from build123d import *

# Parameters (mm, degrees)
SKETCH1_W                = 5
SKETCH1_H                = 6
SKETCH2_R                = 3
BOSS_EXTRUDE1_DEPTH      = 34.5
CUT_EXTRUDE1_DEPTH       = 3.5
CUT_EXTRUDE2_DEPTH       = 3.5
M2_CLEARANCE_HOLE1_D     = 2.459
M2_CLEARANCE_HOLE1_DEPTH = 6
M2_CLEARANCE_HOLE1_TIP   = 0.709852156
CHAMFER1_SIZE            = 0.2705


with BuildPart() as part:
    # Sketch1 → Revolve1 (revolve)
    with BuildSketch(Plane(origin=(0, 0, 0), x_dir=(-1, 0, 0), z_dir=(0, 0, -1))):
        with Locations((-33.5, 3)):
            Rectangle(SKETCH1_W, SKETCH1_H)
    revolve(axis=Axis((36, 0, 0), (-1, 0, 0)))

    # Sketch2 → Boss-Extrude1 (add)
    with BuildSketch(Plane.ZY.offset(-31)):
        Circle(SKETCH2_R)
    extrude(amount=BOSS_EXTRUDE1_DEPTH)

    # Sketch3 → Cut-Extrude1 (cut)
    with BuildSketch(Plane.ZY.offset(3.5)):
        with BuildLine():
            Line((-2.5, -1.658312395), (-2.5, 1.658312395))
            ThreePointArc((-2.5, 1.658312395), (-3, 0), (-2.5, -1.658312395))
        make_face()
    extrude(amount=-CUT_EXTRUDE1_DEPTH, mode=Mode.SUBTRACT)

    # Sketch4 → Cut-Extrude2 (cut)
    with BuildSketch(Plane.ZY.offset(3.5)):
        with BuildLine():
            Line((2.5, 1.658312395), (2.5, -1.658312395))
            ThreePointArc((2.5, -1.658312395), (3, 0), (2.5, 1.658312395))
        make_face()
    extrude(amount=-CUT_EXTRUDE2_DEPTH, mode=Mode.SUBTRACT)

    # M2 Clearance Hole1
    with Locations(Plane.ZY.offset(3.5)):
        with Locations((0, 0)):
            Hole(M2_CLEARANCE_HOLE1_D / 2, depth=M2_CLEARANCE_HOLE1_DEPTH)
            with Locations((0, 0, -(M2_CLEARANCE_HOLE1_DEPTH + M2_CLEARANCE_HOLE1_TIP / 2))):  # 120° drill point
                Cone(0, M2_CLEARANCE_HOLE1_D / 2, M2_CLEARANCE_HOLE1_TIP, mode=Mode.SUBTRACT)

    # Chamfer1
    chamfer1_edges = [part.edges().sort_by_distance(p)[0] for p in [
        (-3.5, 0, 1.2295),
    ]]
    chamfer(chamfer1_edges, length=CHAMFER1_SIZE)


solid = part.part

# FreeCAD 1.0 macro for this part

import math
import FreeCAD as App
import Part
import Sketcher
Q = App.Units.Quantity


def edges_at(feature, points):
    """Names of the edges that pass closest to the given points."""
    edges = feature.Shape.Edges
    near = lambda p: min(range(len(edges)), key=lambda i: edges[i].distToShape(Part.Vertex(*p))[0])
    return sorted({f"Edge{near(p) + 1}" for p in points})

doc = App.newDocument("Part")
body = doc.addObject("PartDesign::Body", "Body")

# Sketch on XY plane
sketch1 = doc.addObject("Sketcher::SketchObject", "Sketch")
body.addObject(sketch1)
sketch1.AttachmentSupport = (doc.XY_Plane, [""])
sketch1.MapMode = "FlatFace"
sketch1.addGeometry(Part.LineSegment(App.Vector(36, 6, 0), App.Vector(36, 0, 0)), False)
sketch1.addGeometry(Part.LineSegment(App.Vector(36, 0, 0), App.Vector(31, 0, 0)), False)
sketch1.addGeometry(Part.LineSegment(App.Vector(31, 0, 0), App.Vector(31, 6, 0)), False)
sketch1.addGeometry(Part.LineSegment(App.Vector(31, 6, 0), App.Vector(36, 6, 0)), False)
sketch1.addConstraint(Sketcher.Constraint("Coincident", 0, 2, 1, 1))
sketch1.addConstraint(Sketcher.Constraint("Coincident", 1, 2, 2, 1))
sketch1.addConstraint(Sketcher.Constraint("Coincident", 2, 2, 3, 1))
sketch1.addConstraint(Sketcher.Constraint("Coincident", 3, 2, 0, 1))
sketch1.addConstraint(Sketcher.Constraint("Vertical", 0))
sketch1.addConstraint(Sketcher.Constraint("Horizontal", 1))
sketch1.addConstraint(Sketcher.Constraint("Vertical", 2))
sketch1.addConstraint(Sketcher.Constraint("Horizontal", 3))
sketch1.addConstraint(Sketcher.Constraint("PointOnObject", 0, 2, -1))
sketch1.addConstraint(Sketcher.Constraint("DistanceX", 1, 2, 1, 1, Q("5 mm")))
sketch1.addConstraint(Sketcher.Constraint("DistanceY", 0, 2, 0, 1, Q("6 mm")))
sketch1.addConstraint(Sketcher.Constraint("DistanceX", -1, 1, 0, 2, Q("36 mm")))
revolution = doc.addObject("PartDesign::Revolution", "Revolution")
body.addObject(revolution)
revolution.Profile = sketch1
revolution.ReferenceAxis = (sketch1, ["H_Axis"])
revolution.Angle = 360

# Sketch on YZ plane
sketch2 = doc.addObject("Sketcher::SketchObject", "Sketch001")
body.addObject(sketch2)
sketch2.AttachmentSupport = (doc.YZ_Plane, [""])
sketch2.MapMode = "FlatFace"
sketch2.AttachmentOffset = App.Placement(App.Vector(0, 0, 31), App.Rotation())
sketch2.addGeometry(Part.Circle(App.Vector(0, 0, 0), App.Vector(0, 0, 1), 3), False)
sketch2.addConstraint(Sketcher.Constraint("Coincident", 0, 3, -1, 1))
sketch2.addConstraint(Sketcher.Constraint("Diameter", 0, Q("6 mm")))
pad1 = doc.addObject("PartDesign::Pad", "Pad")
body.addObject(pad1)
pad1.Profile = sketch2
pad1.Length = 34.5
pad1.Reversed = True

# Sketch on YZ plane
sketch3 = doc.addObject("Sketcher::SketchObject", "Sketch002")
body.addObject(sketch3)
sketch3.AttachmentSupport = (doc.YZ_Plane, [""])
sketch3.MapMode = "FlatFace"
sketch3.AttachmentOffset = App.Placement(App.Vector(0, 0, -3.5), App.Rotation())
sketch3.addGeometry(Part.LineSegment(App.Vector(-1.7, -2.5, 0), App.Vector(1.7, -2.5, 0)), False)
sketch3.addGeometry(Part.ArcOfCircle(Part.Circle(App.Vector(0, 0, 0), App.Vector(0, 0, 1), 3), math.radians(-124), math.radians(-56)), False)
sketch3.addConstraint(Sketcher.Constraint("Coincident", 0, 1, 1, 1))
sketch3.addConstraint(Sketcher.Constraint("Coincident", 1, 2, 0, 2))
sketch3.addConstraint(Sketcher.Constraint("Horizontal", 0))
sketch3.addConstraint(Sketcher.Constraint("Coincident", 1, 3, -1, 1))
sketch3.addConstraint(Sketcher.Constraint("Radius", 1, Q("3 mm")))
sketch3.addConstraint(Sketcher.Constraint("DistanceY", 0, 1, -1, 1, Q("2.5 mm")))
pocket1 = doc.addObject("PartDesign::Pocket", "Pocket")
body.addObject(pocket1)
pocket1.Profile = sketch3
pocket1.Length = 3.5
pocket1.Reversed = True

# Sketch on YZ plane
sketch4 = doc.addObject("Sketcher::SketchObject", "Sketch003")
body.addObject(sketch4)
sketch4.AttachmentSupport = (doc.YZ_Plane, [""])
sketch4.MapMode = "FlatFace"
sketch4.AttachmentOffset = App.Placement(App.Vector(0, 0, -3.5), App.Rotation())
sketch4.addGeometry(Part.LineSegment(App.Vector(1.7, 2.5, 0), App.Vector(-1.7, 2.5, 0)), False)
sketch4.addGeometry(Part.ArcOfCircle(Part.Circle(App.Vector(0, 0, 0), App.Vector(0, 0, 1), 3), math.radians(56), math.radians(124)), False)
sketch4.addConstraint(Sketcher.Constraint("Coincident", 0, 1, 1, 1))
sketch4.addConstraint(Sketcher.Constraint("Coincident", 1, 2, 0, 2))
sketch4.addConstraint(Sketcher.Constraint("Horizontal", 0))
sketch4.addConstraint(Sketcher.Constraint("Coincident", 1, 3, -1, 1))
sketch4.addConstraint(Sketcher.Constraint("Radius", 1, Q("3 mm")))
sketch4.addConstraint(Sketcher.Constraint("DistanceY", -1, 1, 0, 1, Q("2.5 mm")))
pocket2 = doc.addObject("PartDesign::Pocket", "Pocket001")
body.addObject(pocket2)
pocket2.Profile = sketch4
pocket2.Length = 3.5
pocket2.Reversed = True

# Sketch on YZ plane
sketch5 = doc.addObject("Sketcher::SketchObject", "Sketch004")
body.addObject(sketch5)
sketch5.AttachmentSupport = (doc.YZ_Plane, [""])
sketch5.MapMode = "FlatFace"
sketch5.AttachmentOffset = App.Placement(App.Vector(0, 0, -3.5), App.Rotation())
sketch5.addGeometry(Part.Circle(App.Vector(0, 0, 0), App.Vector(0, 0, 1), 1.2), False)
sketch5.addConstraint(Sketcher.Constraint("Coincident", 0, 3, -1, 1))
sketch5.addConstraint(Sketcher.Constraint("Diameter", 0, Q("2.459 mm")))
doc.recompute()
hole = doc.addObject("PartDesign::Hole", "Hole")
body.addObject(hole)
hole.Profile = sketch5
hole.ThreadType = "None"
hole.Diameter = 2.459
hole.DepthType = "Dimension"
hole.Depth = 6
hole.DrillPoint = "Angled"
hole.DrillPointAngle = 120
hole.Reversed = True
doc.recompute()

chamfer = doc.addObject("PartDesign::Chamfer", "Chamfer")
body.addObject(chamfer)
chamfer.Base = (hole, edges_at(hole, [(-3.5, 0, 1.23)]))
chamfer.Size = 0.2705

doc.recompute()
